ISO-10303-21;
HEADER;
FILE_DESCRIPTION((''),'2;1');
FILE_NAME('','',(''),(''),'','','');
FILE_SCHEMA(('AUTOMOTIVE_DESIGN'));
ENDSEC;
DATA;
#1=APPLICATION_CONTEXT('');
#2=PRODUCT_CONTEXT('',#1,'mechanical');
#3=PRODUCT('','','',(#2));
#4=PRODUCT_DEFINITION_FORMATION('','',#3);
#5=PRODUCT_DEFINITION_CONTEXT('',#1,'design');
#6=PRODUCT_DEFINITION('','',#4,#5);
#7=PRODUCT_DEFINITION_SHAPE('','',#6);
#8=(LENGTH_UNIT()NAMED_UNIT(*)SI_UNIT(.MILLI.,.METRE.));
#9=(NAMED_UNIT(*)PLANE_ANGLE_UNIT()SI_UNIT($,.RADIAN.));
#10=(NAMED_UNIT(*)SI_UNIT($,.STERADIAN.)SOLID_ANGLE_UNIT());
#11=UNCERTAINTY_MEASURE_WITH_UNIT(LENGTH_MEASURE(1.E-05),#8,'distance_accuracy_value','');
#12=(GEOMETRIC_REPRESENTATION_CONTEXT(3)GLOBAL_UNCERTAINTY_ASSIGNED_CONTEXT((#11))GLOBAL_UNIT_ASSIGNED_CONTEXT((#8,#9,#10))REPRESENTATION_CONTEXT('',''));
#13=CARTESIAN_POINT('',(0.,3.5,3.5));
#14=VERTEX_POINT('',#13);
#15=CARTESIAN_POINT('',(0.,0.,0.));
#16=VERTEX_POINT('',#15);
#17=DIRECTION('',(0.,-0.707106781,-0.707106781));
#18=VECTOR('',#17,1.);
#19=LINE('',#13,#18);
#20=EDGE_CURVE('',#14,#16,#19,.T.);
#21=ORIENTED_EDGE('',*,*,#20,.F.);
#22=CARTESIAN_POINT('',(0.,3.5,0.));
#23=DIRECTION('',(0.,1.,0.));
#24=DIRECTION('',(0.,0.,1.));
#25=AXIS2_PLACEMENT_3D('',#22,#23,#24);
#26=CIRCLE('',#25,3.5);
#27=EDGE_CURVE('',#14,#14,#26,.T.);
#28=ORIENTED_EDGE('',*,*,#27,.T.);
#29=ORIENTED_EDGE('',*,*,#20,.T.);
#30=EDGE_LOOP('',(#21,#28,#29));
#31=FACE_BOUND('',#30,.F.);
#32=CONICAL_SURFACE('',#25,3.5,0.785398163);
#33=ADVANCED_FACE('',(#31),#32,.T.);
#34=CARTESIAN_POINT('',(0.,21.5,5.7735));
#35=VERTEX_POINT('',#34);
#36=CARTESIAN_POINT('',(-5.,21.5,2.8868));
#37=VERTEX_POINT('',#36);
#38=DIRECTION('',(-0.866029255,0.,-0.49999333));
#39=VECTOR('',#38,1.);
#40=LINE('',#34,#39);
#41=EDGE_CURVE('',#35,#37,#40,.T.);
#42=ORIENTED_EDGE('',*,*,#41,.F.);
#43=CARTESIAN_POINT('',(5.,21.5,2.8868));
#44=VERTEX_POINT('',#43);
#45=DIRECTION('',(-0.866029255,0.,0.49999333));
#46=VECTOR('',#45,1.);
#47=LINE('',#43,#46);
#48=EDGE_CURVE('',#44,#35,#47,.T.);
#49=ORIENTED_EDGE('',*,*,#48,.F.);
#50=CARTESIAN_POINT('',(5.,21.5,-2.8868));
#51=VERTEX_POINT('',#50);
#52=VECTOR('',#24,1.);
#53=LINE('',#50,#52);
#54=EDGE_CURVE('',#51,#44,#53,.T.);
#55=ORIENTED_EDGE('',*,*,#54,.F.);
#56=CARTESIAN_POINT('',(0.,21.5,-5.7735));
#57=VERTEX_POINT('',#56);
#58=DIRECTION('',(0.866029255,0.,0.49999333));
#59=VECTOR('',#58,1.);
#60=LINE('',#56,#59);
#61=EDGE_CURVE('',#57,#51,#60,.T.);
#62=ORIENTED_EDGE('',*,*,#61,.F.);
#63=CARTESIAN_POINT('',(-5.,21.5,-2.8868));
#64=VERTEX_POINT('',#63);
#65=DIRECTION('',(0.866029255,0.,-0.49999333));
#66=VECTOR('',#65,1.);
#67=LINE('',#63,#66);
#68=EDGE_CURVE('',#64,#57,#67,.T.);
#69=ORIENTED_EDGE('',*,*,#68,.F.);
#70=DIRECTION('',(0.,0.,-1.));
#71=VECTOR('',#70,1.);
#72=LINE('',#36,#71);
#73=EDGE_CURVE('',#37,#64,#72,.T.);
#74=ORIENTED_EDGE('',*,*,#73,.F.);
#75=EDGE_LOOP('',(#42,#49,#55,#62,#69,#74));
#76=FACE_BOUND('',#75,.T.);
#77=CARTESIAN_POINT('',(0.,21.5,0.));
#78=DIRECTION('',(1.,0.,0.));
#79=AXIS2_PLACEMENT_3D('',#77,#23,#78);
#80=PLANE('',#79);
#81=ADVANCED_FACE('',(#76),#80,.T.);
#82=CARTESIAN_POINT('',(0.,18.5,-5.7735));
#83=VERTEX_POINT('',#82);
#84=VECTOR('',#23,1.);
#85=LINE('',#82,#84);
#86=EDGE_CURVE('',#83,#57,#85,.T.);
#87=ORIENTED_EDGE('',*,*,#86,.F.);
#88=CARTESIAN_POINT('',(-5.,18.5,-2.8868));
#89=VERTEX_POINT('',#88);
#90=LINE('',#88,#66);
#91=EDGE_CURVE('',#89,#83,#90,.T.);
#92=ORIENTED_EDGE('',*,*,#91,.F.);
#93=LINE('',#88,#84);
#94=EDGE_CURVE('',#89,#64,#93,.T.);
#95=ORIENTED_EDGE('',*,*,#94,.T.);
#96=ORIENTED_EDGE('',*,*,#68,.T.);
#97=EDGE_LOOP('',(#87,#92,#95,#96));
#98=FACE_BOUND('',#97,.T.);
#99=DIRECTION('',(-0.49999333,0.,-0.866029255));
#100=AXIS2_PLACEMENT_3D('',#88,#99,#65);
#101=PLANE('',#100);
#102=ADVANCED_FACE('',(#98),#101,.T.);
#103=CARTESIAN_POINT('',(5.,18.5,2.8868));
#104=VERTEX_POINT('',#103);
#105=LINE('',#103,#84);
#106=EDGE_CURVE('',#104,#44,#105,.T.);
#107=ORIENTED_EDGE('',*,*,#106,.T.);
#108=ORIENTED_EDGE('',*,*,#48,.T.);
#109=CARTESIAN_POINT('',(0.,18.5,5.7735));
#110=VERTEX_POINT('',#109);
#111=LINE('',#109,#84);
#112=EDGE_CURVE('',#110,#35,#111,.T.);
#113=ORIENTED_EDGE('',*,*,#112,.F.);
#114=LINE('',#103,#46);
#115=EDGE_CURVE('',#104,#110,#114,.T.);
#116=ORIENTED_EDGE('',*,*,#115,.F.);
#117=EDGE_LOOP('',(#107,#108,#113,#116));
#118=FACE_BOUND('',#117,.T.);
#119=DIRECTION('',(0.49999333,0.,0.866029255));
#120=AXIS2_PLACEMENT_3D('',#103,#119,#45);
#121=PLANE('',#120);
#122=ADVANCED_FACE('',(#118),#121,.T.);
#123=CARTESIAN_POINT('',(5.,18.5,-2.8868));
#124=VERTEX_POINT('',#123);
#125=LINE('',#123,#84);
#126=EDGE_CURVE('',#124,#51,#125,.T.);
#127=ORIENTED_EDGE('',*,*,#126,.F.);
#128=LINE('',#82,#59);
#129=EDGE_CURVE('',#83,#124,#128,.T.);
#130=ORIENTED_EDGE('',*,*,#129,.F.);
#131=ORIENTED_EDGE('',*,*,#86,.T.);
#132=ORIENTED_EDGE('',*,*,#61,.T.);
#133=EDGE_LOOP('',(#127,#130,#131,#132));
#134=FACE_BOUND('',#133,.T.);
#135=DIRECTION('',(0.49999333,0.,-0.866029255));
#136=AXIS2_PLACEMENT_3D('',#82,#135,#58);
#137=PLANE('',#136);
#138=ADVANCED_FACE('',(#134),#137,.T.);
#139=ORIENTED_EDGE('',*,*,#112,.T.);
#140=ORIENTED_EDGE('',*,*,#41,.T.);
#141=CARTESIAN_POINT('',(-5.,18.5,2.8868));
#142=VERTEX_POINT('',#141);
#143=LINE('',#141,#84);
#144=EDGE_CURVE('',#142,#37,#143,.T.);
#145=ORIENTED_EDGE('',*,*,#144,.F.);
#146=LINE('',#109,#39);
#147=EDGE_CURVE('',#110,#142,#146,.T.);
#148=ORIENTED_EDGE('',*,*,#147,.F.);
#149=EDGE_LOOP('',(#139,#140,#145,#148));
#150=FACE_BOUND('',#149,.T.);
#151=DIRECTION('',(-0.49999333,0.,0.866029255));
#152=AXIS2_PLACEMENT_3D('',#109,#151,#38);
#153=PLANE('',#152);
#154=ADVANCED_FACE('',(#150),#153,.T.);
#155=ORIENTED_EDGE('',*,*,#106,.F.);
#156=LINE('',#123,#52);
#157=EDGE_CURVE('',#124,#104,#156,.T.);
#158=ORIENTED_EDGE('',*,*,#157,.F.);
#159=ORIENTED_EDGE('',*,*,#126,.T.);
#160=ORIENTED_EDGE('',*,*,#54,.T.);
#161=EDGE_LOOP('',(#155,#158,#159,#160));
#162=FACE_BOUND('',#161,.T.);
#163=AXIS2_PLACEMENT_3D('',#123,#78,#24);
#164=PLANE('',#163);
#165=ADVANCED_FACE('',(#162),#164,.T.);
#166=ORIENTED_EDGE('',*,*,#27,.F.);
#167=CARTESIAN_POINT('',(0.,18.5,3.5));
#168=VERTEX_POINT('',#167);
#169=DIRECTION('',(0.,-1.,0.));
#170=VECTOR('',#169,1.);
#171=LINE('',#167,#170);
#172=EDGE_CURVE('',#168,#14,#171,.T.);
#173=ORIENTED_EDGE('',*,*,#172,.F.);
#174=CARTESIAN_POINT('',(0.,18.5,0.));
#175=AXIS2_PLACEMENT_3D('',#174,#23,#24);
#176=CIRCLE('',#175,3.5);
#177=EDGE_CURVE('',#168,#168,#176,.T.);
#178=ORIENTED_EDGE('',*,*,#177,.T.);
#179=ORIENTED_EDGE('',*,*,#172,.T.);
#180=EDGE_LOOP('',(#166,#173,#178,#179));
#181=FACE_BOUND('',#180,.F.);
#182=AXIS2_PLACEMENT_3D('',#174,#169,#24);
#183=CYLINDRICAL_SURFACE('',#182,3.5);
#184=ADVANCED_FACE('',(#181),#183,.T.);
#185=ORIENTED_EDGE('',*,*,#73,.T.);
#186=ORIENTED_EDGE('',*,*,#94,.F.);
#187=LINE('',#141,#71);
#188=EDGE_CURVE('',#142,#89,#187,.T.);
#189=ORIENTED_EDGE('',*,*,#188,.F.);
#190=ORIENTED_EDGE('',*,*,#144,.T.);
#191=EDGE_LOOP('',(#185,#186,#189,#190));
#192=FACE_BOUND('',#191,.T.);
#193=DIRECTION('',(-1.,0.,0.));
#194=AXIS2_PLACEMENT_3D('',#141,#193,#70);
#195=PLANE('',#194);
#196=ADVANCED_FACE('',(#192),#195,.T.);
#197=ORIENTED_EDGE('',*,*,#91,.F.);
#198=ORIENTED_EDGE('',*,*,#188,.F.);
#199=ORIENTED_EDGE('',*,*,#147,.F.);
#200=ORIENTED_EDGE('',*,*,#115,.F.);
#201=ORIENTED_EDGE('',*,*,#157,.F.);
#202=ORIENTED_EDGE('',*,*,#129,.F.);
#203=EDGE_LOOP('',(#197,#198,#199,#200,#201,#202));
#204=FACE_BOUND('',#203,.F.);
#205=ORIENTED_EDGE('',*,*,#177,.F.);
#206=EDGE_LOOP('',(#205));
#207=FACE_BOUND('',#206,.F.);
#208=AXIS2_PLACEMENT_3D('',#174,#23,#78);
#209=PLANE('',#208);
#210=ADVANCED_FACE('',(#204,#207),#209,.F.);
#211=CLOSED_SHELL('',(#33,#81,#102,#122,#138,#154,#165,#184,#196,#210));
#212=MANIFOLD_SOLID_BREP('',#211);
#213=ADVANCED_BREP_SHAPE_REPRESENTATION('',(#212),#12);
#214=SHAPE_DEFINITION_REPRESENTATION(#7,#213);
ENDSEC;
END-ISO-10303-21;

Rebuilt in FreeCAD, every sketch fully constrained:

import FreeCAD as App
import Part
import Sketcher
Q = App.Units.Quantity

doc = App.newDocument("Part")
body = doc.addObject("PartDesign::Body", "Body")

sketch1 = doc.addObject("Sketcher::SketchObject", "Sketch")
body.addObject(sketch1)
sketch1.AttachmentSupport = (doc.YZ_Plane, [""])
sketch1.MapMode = "FlatFace"
sketch1.addGeometry([
    Part.LineSegment(App.Vector(3.5, 3.5, 0), App.Vector(0, 0, 0)),
    Part.LineSegment(App.Vector(0, 0, 0), App.Vector(18.5, 0, 0)),
    Part.LineSegment(App.Vector(18.5, 0, 0), App.Vector(18.5, 3.5, 0)),
    Part.LineSegment(App.Vector(18.5, 3.5, 0), App.Vector(3.5, 3.5, 0)),
], False)
sketch1.addConstraint([
    Sketcher.Constraint("Coincident", 0, 2, 1, 1),
    Sketcher.Constraint("Coincident", 1, 2, 2, 1),
    Sketcher.Constraint("Coincident", 2, 2, 3, 1),
    Sketcher.Constraint("Coincident", 3, 2, 0, 1),
    Sketcher.Constraint("Horizontal", 1),
    Sketcher.Constraint("Vertical", 2),
    Sketcher.Constraint("Horizontal", 3),
    Sketcher.Constraint("Coincident", 0, 2, -1, 1),
    Sketcher.Constraint("Angle", 0, Q("-135 deg")),
    Sketcher.Constraint("DistanceX", 1, 1, 1, 2, 18.5),
    Sketcher.Constraint("DistanceY", 2, 1, 2, 2, 3.5),
])
revolution = doc.addObject("PartDesign::Revolution", "Revolution")
body.addObject(revolution)
revolution.Profile = sketch1
revolution.ReferenceAxis = (sketch1, ["H_Axis"])
revolution.Angle = 360

sketch2 = doc.addObject("Sketcher::SketchObject", "Sketch001")
body.addObject(sketch2)
sketch2.AttachmentSupport = (doc.XZ_Plane, [""])
sketch2.MapMode = "FlatFace"
sketch2.AttachmentOffset = App.Placement(App.Vector(0, 0, -18.5), App.Rotation())
sketch2.addGeometry([
    Part.LineSegment(App.Vector(-5, -3, 0), App.Vector(-5, 3, 0)),
    Part.LineSegment(App.Vector(-5, 3, 0), App.Vector(0, 6, 0)),
    Part.LineSegment(App.Vector(0, 6, 0), App.Vector(5, 3, 0)),
    Part.LineSegment(App.Vector(5, 3, 0), App.Vector(5, -3, 0)),
    Part.LineSegment(App.Vector(5, -3, 0), App.Vector(0, -6, 0)),
    Part.LineSegment(App.Vector(0, -6, 0), App.Vector(-5, -3, 0)),
], False)
sketch2.addConstraint([
    Sketcher.Constraint("Coincident", 0, 2, 1, 1),
    Sketcher.Constraint("Coincident", 1, 2, 2, 1),
    Sketcher.Constraint("Coincident", 2, 2, 3, 1),
    Sketcher.Constraint("Coincident", 3, 2, 4, 1),
    Sketcher.Constraint("Coincident", 4, 2, 5, 1),
    Sketcher.Constraint("Coincident", 5, 2, 0, 1),
    Sketcher.Constraint("Vertical", 0),
    Sketcher.Constraint("Vertical", 3),
    Sketcher.Constraint("Symmetric", 0, 2, 3, 2, -1, 1),
    Sketcher.Constraint("Symmetric", 1, 2, 4, 2, -1, 1),
    Sketcher.Constraint("PointOnObject", 1, 2, -2),
    Sketcher.Constraint("Parallel", 2, 5),
    Sketcher.Constraint("Horizontal", 0, 2, 2, 2),
    Sketcher.Constraint("DistanceX", 0, 2, 2, 2, 10.0),
    Sketcher.Constraint("Angle", 1, Q("29.9996 deg")),
    Sketcher.Constraint("DistanceY", 0, 1, 0, 2, 5.7736),
])
pad1 = doc.addObject("PartDesign::Pad", "Pad")
body.addObject(pad1)
pad1.Profile = sketch2
pad1.Length = 3
pad1.Reversed = True

doc.recompute()
